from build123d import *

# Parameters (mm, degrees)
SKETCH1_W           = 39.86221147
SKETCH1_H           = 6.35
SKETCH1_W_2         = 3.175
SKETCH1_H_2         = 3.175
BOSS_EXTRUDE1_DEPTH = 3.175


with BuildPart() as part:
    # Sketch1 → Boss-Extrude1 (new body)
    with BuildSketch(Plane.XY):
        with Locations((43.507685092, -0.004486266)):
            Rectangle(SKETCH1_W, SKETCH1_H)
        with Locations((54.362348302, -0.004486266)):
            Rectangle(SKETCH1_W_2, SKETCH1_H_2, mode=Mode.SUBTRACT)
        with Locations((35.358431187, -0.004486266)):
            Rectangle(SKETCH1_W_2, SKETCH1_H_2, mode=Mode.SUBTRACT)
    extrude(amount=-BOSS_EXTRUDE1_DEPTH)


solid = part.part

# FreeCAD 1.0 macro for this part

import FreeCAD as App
import Part
import Sketcher
from FreeCAD import Vector
Q = App.Units.Quantity

doc = App.newDocument("Part")
body = doc.addObject("PartDesign::Body", "Body")

sketch1 = doc.addObject("Sketcher::SketchObject", "Sketch")
body.addObject(sketch1)
sketch1.AttachmentSupport = (doc.XY_Plane, [""])
sketch1.MapMode = "FlatFace"
sketch1.addGeometry(Part.LineSegment(Vector(23.6, 3.2, 0), Vector(23.6, -3.2, 0)), False)
sketch1.addGeometry(Part.LineSegment(Vector(23.6, -3.2, 0), Vector(63.4, -3.2, 0)), False)
sketch1.addGeometry(Part.LineSegment(Vector(63.4, -3.2, 0), Vector(63.4, 3.2, 0)), False)
sketch1.addGeometry(Part.LineSegment(Vector(63.4, 3.2, 0), Vector(23.6, 3.2, 0)), False)
sketch1.addGeometry(Part.LineSegment(Vector(36.9, -1.6, 0), Vector(33.8, -1.6, 0)), False)
sketch1.addGeometry(Part.LineSegment(Vector(33.8, -1.6, 0), Vector(33.8, 1.6, 0)), False)
sketch1.addGeometry(Part.LineSegment(Vector(33.8, 1.6, 0), Vector(36.9, 1.6, 0)), False)
sketch1.addGeometry(Part.LineSegment(Vector(36.9, 1.6, 0), Vector(36.9, -1.6, 0)), False)
sketch1.addGeometry(Part.LineSegment(Vector(55.9, -1.6, 0), Vector(52.8, -1.6, 0)), False)
sketch1.addGeometry(Part.LineSegment(Vector(52.8, -1.6, 0), Vector(52.8, 1.6, 0)), False)
sketch1.addGeometry(Part.LineSegment(Vector(52.8, 1.6, 0), Vector(55.9, 1.6, 0)), False)
sketch1.addGeometry(Part.LineSegment(Vector(55.9, 1.6, 0), Vector(55.9, -1.6, 0)), False)
sketch1.addConstraint(Sketcher.Constraint("Coincident", 0, 2, 1, 1))
sketch1.addConstraint(Sketcher.Constraint("Coincident", 1, 2, 2, 1))
sketch1.addConstraint(Sketcher.Constraint("Coincident", 2, 2, 3, 1))
sketch1.addConstraint(Sketcher.Constraint("Coincident", 3, 2, 0, 1))
sketch1.addConstraint(Sketcher.Constraint("Coincident", 4, 2, 5, 1))
sketch1.addConstraint(Sketcher.Constraint("Coincident", 5, 2, 6, 1))
sketch1.addConstraint(Sketcher.Constraint("Coincident", 6, 2, 7, 1))
sketch1.addConstraint(Sketcher.Constraint("Coincident", 7, 2, 4, 1))
sketch1.addConstraint(Sketcher.Constraint("Coincident", 8, 2, 9, 1))
sketch1.addConstraint(Sketcher.Constraint("Coincident", 9, 2, 10, 1))
sketch1.addConstraint(Sketcher.Constraint("Coincident", 10, 2, 11, 1))
sketch1.addConstraint(Sketcher.Constraint("Coincident", 11, 2, 8, 1))
sketch1.addConstraint(Sketcher.Constraint("Vertical", 0))
sketch1.addConstraint(Sketcher.Constraint("Horizontal", 1))
sketch1.addConstraint(Sketcher.Constraint("Vertical", 2))
sketch1.addConstraint(Sketcher.Constraint("Horizontal", 3))
sketch1.addConstraint(Sketcher.Constraint("Horizontal", 4))
sketch1.addConstraint(Sketcher.Constraint("Vertical", 5))
sketch1.addConstraint(Sketcher.Constraint("Horizontal", 6))
sketch1.addConstraint(Sketcher.Constraint("Vertical", 7))
sketch1.addConstraint(Sketcher.Constraint("Horizontal", 8))
sketch1.addConstraint(Sketcher.Constraint("Vertical", 9))
sketch1.addConstraint(Sketcher.Constraint("Horizontal", 10))
sketch1.addConstraint(Sketcher.Constraint("Vertical", 11))
sketch1.addConstraint(Sketcher.Constraint("Horizontal", 7, 2, 8, 2))
sketch1.addConstraint(Sketcher.Constraint("Horizontal", 6, 2, 9, 2))
sketch1.addConstraint(Sketcher.Constraint("Equal", 6, 8))
sketch1.addConstraint(Sketcher.Constraint("Equal", 10, 5))
sketch1.addConstraint(Sketcher.Constraint("DistanceY", 0, 2, 0, 1, Q("0.25 in")))
sketch1.addConstraint(Sketcher.Constraint("DistanceX", 4, 2, 4, 1, Q("0.125 in")))
sketch1.addConstraint(Sketcher.Constraint("DistanceY", 0, 2, 4, 2, Q("0.0625 in")))
sketch1.addConstraint(Sketcher.Constraint("DistanceX", 1, 1, 1, 2, 39.862211))
sketch1.addConstraint(Sketcher.Constraint("DistanceX", -1, 1, 0, 2, 23.576579))
sketch1.addConstraint(Sketcher.Constraint("DistanceX", -1, 1, 4, 2, 33.770931))
sketch1.addConstraint(Sketcher.Constraint("DistanceX", -1, 1, 8, 2, 52.774848))
sketch1.addConstraint(Sketcher.Constraint("DistanceY", 0, 2, -1, 1, 3.179486))
pad1 = doc.addObject("PartDesign::Pad", "Pad")
body.addObject(pad1)
pad1.Profile = sketch1
pad1.Length = Q("0.125 in")
pad1.Reversed = True

doc.recompute()
